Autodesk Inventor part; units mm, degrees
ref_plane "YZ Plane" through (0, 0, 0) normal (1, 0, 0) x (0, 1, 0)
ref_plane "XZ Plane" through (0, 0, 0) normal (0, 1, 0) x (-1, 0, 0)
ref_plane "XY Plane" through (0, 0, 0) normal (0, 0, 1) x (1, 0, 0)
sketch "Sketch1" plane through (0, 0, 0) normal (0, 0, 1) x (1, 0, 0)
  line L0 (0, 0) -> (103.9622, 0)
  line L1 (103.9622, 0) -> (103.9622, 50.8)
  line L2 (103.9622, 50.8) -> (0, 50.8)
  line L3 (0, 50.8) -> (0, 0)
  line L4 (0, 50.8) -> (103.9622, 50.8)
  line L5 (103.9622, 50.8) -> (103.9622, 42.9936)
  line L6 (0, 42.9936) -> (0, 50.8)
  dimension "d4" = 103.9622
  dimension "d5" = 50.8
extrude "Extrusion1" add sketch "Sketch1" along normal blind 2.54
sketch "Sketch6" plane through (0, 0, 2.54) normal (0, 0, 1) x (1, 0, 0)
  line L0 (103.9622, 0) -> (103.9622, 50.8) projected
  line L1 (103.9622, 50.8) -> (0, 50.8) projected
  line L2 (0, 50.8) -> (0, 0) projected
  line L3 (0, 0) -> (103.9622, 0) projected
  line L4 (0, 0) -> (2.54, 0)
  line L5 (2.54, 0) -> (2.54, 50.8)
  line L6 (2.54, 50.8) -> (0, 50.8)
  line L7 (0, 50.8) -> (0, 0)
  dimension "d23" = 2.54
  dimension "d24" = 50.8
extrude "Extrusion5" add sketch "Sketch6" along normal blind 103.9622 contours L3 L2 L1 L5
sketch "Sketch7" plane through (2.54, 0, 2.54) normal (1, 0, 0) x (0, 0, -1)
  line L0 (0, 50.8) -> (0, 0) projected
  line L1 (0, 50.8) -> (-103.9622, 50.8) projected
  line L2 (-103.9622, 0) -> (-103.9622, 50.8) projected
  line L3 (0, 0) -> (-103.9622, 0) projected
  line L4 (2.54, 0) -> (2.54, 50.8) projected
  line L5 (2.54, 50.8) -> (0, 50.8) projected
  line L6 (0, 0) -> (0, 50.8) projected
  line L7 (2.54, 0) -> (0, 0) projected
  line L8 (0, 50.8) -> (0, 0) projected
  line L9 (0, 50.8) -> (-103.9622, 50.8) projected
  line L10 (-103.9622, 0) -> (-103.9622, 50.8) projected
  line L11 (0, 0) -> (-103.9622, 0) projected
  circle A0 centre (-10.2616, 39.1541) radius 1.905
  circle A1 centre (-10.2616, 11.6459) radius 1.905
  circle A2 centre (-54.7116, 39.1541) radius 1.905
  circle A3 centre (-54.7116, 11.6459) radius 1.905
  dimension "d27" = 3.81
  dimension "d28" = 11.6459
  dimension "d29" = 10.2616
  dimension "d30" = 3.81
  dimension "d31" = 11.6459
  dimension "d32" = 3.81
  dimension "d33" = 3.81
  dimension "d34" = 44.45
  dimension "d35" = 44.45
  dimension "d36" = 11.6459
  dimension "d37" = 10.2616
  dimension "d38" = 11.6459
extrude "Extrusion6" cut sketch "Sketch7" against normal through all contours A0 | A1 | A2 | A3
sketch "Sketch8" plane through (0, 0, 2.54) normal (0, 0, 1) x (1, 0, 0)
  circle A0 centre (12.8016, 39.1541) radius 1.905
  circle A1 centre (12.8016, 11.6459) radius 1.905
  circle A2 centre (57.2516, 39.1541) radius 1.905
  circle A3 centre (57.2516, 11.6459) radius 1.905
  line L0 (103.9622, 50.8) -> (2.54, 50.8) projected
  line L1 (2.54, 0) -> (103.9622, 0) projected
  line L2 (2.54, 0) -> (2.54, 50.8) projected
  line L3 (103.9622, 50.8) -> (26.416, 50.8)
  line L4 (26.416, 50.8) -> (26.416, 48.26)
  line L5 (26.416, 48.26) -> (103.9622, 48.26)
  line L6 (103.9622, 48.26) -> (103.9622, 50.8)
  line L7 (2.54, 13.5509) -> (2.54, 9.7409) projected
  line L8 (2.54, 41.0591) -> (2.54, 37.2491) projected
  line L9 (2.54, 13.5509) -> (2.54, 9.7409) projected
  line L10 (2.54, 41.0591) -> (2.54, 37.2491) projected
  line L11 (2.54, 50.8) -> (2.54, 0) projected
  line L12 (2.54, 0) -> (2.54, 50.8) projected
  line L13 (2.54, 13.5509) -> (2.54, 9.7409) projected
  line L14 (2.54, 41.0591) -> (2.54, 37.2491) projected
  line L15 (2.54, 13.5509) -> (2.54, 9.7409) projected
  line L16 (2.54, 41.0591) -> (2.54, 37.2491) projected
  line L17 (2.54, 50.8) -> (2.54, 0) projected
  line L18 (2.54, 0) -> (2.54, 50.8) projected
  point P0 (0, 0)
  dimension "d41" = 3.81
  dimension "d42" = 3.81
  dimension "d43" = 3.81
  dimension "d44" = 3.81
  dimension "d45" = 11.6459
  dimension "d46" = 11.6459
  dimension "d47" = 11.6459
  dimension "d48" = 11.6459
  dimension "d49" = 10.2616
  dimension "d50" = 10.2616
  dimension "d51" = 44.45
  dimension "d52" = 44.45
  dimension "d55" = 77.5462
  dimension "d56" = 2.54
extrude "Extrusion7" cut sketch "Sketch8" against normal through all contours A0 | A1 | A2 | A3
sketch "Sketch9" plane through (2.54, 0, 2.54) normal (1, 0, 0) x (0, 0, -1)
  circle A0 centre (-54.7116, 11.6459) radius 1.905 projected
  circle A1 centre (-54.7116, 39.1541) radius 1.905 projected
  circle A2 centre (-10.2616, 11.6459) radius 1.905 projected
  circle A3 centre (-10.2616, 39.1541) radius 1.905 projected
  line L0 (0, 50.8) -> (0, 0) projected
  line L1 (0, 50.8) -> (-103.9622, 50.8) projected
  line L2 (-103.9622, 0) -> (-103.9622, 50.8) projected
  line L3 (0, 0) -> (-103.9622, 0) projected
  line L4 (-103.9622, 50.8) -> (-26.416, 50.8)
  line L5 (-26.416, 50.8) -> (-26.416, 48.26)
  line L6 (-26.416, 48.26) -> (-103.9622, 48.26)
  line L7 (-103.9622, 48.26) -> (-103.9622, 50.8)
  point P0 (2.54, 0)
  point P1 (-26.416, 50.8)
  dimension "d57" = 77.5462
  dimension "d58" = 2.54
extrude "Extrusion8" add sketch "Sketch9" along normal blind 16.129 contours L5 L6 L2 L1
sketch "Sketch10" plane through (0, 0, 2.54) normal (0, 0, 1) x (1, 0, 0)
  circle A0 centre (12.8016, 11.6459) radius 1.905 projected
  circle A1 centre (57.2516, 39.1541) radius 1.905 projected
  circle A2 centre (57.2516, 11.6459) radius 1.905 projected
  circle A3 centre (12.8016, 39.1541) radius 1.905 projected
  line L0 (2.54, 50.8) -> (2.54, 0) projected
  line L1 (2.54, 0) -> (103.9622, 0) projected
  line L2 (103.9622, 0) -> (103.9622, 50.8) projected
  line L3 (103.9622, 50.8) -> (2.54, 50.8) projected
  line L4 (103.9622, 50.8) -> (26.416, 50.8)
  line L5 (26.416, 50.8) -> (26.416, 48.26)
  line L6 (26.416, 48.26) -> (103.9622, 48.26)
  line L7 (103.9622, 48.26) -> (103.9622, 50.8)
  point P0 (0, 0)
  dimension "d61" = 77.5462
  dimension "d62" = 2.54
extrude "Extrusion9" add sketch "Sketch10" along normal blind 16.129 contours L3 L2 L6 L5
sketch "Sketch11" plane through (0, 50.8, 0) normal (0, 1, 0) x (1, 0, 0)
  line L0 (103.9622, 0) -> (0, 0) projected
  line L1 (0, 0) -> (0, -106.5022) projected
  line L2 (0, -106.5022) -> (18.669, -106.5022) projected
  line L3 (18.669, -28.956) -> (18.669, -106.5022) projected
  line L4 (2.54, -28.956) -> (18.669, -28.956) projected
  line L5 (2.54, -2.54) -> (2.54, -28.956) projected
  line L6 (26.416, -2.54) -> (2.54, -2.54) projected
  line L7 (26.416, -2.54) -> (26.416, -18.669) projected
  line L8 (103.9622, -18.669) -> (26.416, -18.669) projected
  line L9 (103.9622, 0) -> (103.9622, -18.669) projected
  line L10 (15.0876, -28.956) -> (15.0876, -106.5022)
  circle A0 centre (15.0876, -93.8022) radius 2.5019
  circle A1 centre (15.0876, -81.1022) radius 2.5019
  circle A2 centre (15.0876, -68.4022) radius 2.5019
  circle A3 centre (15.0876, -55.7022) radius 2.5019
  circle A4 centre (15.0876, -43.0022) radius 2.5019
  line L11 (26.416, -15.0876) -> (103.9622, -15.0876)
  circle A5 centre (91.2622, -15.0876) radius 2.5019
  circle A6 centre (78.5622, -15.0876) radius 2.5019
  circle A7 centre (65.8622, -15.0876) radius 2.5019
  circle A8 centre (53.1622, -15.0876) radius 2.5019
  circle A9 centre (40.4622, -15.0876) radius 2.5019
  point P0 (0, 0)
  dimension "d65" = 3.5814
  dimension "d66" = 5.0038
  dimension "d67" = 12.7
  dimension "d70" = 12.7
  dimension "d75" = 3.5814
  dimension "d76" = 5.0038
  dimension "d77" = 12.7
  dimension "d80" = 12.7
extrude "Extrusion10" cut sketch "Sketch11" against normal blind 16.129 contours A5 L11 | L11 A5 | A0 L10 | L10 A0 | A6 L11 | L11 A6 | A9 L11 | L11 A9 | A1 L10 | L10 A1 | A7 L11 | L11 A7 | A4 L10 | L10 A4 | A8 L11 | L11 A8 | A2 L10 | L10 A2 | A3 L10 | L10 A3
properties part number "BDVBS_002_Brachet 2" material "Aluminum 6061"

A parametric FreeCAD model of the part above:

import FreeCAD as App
import Part
import Sketcher

V = App.Vector
Q = App.Units.Quantity

doc = App.newDocument("Part")
body = doc.addObject("PartDesign::Body", "Body")

sketch1 = body.newObject("Sketcher::SketchObject", "Sketch")
sketch1.AttachmentSupport = (doc.getObject("XY_Plane"), [""])
sketch1.MapMode = "FlatFace"
sketch1.addGeometry(Part.LineSegment(V(0, 51, 0), V(0, 0, 0)), False)
sketch1.addGeometry(Part.LineSegment(V(0, 0, 0), V(104, 0, 0)), False)
sketch1.addGeometry(Part.LineSegment(V(104, 0, 0), V(104, 51, 0)), False)
sketch1.addGeometry(Part.LineSegment(V(104, 51, 0), V(0, 51, 0)), False)
sketch1.addConstraint(Sketcher.Constraint("Coincident", 0, 2, 1, 1))
sketch1.addConstraint(Sketcher.Constraint("Coincident", 1, 2, 2, 1))
sketch1.addConstraint(Sketcher.Constraint("Coincident", 2, 2, 3, 1))
sketch1.addConstraint(Sketcher.Constraint("Coincident", 3, 2, 0, 1))
sketch1.addConstraint(Sketcher.Constraint("Vertical", 0))
sketch1.addConstraint(Sketcher.Constraint("Horizontal", 1))
sketch1.addConstraint(Sketcher.Constraint("Vertical", 2))
sketch1.addConstraint(Sketcher.Constraint("Horizontal", 3))
sketch1.addConstraint(Sketcher.Constraint("Coincident", 0, 2, -1, 1))
sketch1.addConstraint(Sketcher.Constraint("DistanceY", 0, 2, 0, 1, Q("2 in")))
sketch1.addConstraint(Sketcher.Constraint("DistanceX", 1, 1, 1, 2, Q("4.093 in")))
pad1 = body.newObject("PartDesign::Pad", "Pad")
pad1.Profile = sketch1
pad1.Length = Q("0.1 in")

sketch2 = body.newObject("Sketcher::SketchObject", "Sketch001")
sketch2.AttachmentSupport = (doc.getObject("XY_Plane"), [""])
sketch2.MapMode = "FlatFace"
sketch2.AttachmentOffset = App.Placement(V(0, 0, 0.1 * 25.4), App.Rotation())
sketch2.addGeometry(Part.LineSegment(V(0, 0, 0), V(2.5, 0, 0)), False)
sketch2.addGeometry(Part.LineSegment(V(2.5, 0, 0), V(2.5, 50.8, 0)), False)
sketch2.addGeometry(Part.LineSegment(V(2.5, 50.8, 0), V(0, 50.8, 0)), False)
sketch2.addGeometry(Part.LineSegment(V(0, 50.8, 0), V(0, 0, 0)), False)
sketch2.addConstraint(Sketcher.Constraint("Coincident", 0, 2, 1, 1))
sketch2.addConstraint(Sketcher.Constraint("Coincident", 1, 2, 2, 1))
sketch2.addConstraint(Sketcher.Constraint("Coincident", 2, 2, 3, 1))
sketch2.addConstraint(Sketcher.Constraint("Coincident", 3, 2, 0, 1))
sketch2.addConstraint(Sketcher.Constraint("Horizontal", 0))
sketch2.addConstraint(Sketcher.Constraint("Vertical", 1))
sketch2.addConstraint(Sketcher.Constraint("Horizontal", 2))
sketch2.addConstraint(Sketcher.Constraint("Vertical", 3))
sketch2.addConstraint(Sketcher.Constraint("Coincident", 3, 2, -1, 1))
sketch2.addConstraint(Sketcher.Constraint("DistanceY", 1, 1, 1, 2, Q("2 in")))
sketch2.addConstraint(Sketcher.Constraint("DistanceX", 0, 1, 0, 2, Q("0.1 in")))
pad2 = body.newObject("PartDesign::Pad", "Pad001")
pad2.Profile = sketch2
pad2.Length = Q("4.093 in")

sketch3 = body.newObject("Sketcher::SketchObject", "Sketch002")
sketch3.AttachmentSupport = (doc.getObject("YZ_Plane"), [""])
sketch3.MapMode = "FlatFace"
sketch3.AttachmentOffset = App.Placement(V(0, 0, 0.1 * 25.4), App.Rotation())
sketch3.addGeometry(Part.Circle(V(39.2, 12.8, 0), V(0, 0, 1), 1.9), False)
sketch3.addGeometry(Part.Circle(V(11.6, 12.8, 0), V(0, 0, 1), 1.9), False)
sketch3.addGeometry(Part.Circle(V(39.2, 57.3, 0), V(0, 0, 1), 1.9), False)
sketch3.addGeometry(Part.Circle(V(11.6, 57.3, 0), V(0, 0, 1), 1.9), False)
sketch3.addConstraint(Sketcher.Constraint("Equal", 0, 1))
sketch3.addConstraint(Sketcher.Constraint("Equal", 1, 2))
sketch3.addConstraint(Sketcher.Constraint("Equal", 2, 3))
sketch3.addConstraint(Sketcher.Constraint("Horizontal", 0, 3, 1, 3))
sketch3.addConstraint(Sketcher.Constraint("Horizontal", 2, 3, 3, 3))
sketch3.addConstraint(Sketcher.Constraint("Vertical", 0, 3, 2, 3))
sketch3.addConstraint(Sketcher.Constraint("Vertical", 1, 3, 3, 3))
sketch3.addConstraint(Sketcher.Constraint("Diameter", 0, Q("0.15 in")))
sketch3.addConstraint(Sketcher.Constraint("DistanceY", 0, 3, 2, 3, Q("1.75 in")))
sketch3.addConstraint(Sketcher.Constraint("DistanceX", -1, 1, 1, 3, Q("0.4585 in")))
sketch3.addConstraint(Sketcher.Constraint("DistanceY", -1, 1, 0, 3, Q("0.504 in")))
sketch3.addConstraint(Sketcher.Constraint("DistanceX", 1, 3, 0, 3, Q("1.083 in")))
pocket1 = body.newObject("PartDesign::Pocket", "Pocket")
pocket1.Profile = sketch3
pocket1.Type = "ThroughAll"

sketch4 = body.newObject("Sketcher::SketchObject", "Sketch003")
sketch4.AttachmentSupport = (doc.getObject("XY_Plane"), [""])
sketch4.MapMode = "FlatFace"
sketch4.AttachmentOffset = App.Placement(V(0, 0, 0.1 * 25.4), App.Rotation())
sketch4.addGeometry(Part.Circle(V(12.8, 39.2, 0), V(0, 0, 1), 1.9), False)
sketch4.addGeometry(Part.Circle(V(12.8, 11.6, 0), V(0, 0, 1), 1.9), False)
sketch4.addGeometry(Part.Circle(V(57.3, 39.2, 0), V(0, 0, 1), 1.9), False)
sketch4.addGeometry(Part.Circle(V(57.3, 11.6, 0), V(0, 0, 1), 1.9), False)
sketch4.addConstraint(Sketcher.Constraint("Equal", 0, 1))
sketch4.addConstraint(Sketcher.Constraint("Equal", 1, 2))
sketch4.addConstraint(Sketcher.Constraint("Equal", 2, 3))
sketch4.addConstraint(Sketcher.Constraint("Horizontal", 0, 3, 2, 3))
sketch4.addConstraint(Sketcher.Constraint("Horizontal", 1, 3, 3, 3))
sketch4.addConstraint(Sketcher.Constraint("Vertical", 0, 3, 1, 3))
sketch4.addConstraint(Sketcher.Constraint("Vertical", 2, 3, 3, 3))
sketch4.addConstraint(Sketcher.Constraint("Diameter", 0, Q("0.15 in")))
sketch4.addConstraint(Sketcher.Constraint("DistanceX", 0, 3, 2, 3, Q("1.75 in")))
sketch4.addConstraint(Sketcher.Constraint("DistanceY", -1, 1, 1, 3, Q("0.4585 in")))
sketch4.addConstraint(Sketcher.Constraint("DistanceX", -1, 1, 0, 3, Q("0.504 in")))
sketch4.addConstraint(Sketcher.Constraint("DistanceY", 1, 3, 0, 3, Q("1.083 in")))
pocket2 = body.newObject("PartDesign::Pocket", "Pocket001")
pocket2.Profile = sketch4
pocket2.Type = "ThroughAll"

sketch5 = body.newObject("Sketcher::SketchObject", "Sketch004")
sketch5.AttachmentSupport = (doc.getObject("YZ_Plane"), [""])
sketch5.MapMode = "FlatFace"
sketch5.AttachmentOffset = App.Placement(V(0, 0, 0.1 * 25.4), App.Rotation())
sketch5.addGeometry(Part.LineSegment(V(48.3, 29, 0), V(50.8, 29, 0)), False)
sketch5.addGeometry(Part.LineSegment(V(50.8, 29, 0), V(50.8, 106.5, 0)), False)
sketch5.addGeometry(Part.LineSegment(V(50.8, 106.5, 0), V(48.3, 106.5, 0)), False)
sketch5.addGeometry(Part.LineSegment(V(48.3, 106.5, 0), V(48.3, 29, 0)), False)
sketch5.addConstraint(Sketcher.Constraint("Coincident", 0, 2, 1, 1))
sketch5.addConstraint(Sketcher.Constraint("Coincident", 1, 2, 2, 1))
sketch5.addConstraint(Sketcher.Constraint("Coincident", 2, 2, 3, 1))
sketch5.addConstraint(Sketcher.Constraint("Coincident", 3, 2, 0, 1))
sketch5.addConstraint(Sketcher.Constraint("Horizontal", 0))
sketch5.addConstraint(Sketcher.Constraint("Vertical", 1))
sketch5.addConstraint(Sketcher.Constraint("Horizontal", 2))
sketch5.addConstraint(Sketcher.Constraint("Vertical", 3))
sketch5.addConstraint(Sketcher.Constraint("DistanceX", 0, 1, 0, 2, Q("0.1 in")))
sketch5.addConstraint(Sketcher.Constraint("DistanceY", 1, 1, 1, 2, Q("3.053 in")))
sketch5.addConstraint(Sketcher.Constraint("DistanceX", -1, 1, 0, 2, Q("2 in")))
sketch5.addConstraint(Sketcher.Constraint("DistanceY", -1, 1, 0, 2, Q("1.14 in")))
pad3 = body.newObject("PartDesign::Pad", "Pad002")
pad3.Profile = sketch5
pad3.Length = Q("0.635 in")

sketch6 = body.newObject("Sketcher::SketchObject", "Sketch005")
sketch6.AttachmentSupport = (doc.getObject("XY_Plane"), [""])
sketch6.MapMode = "FlatFace"
sketch6.AttachmentOffset = App.Placement(V(0, 0, 0.1 * 25.4), App.Rotation())
sketch6.addGeometry(Part.LineSegment(V(104, 50.8, 0), V(26.4, 50.8, 0)), False)
sketch6.addGeometry(Part.LineSegment(V(26.4, 50.8, 0), V(26.4, 48.3, 0)), False)
sketch6.addGeometry(Part.LineSegment(V(26.4, 48.3, 0), V(104, 48.3, 0)), False)
sketch6.addGeometry(Part.LineSegment(V(104, 48.3, 0), V(104, 50.8, 0)), False)
sketch6.addConstraint(Sketcher.Constraint("Coincident", 0, 2, 1, 1))
sketch6.addConstraint(Sketcher.Constraint("Coincident", 1, 2, 2, 1))
sketch6.addConstraint(Sketcher.Constraint("Coincident", 2, 2, 3, 1))
sketch6.addConstraint(Sketcher.Constraint("Coincident", 3, 2, 0, 1))
sketch6.addConstraint(Sketcher.Constraint("Horizontal", 0))
sketch6.addConstraint(Sketcher.Constraint("Vertical", 1))
sketch6.addConstraint(Sketcher.Constraint("Horizontal", 2))
sketch6.addConstraint(Sketcher.Constraint("Vertical", 3))
sketch6.addConstraint(Sketcher.Constraint("DistanceY", 1, 2, 1, 1, Q("0.1 in")))
sketch6.addConstraint(Sketcher.Constraint("DistanceX", 0, 2, 0, 1, Q("3.053 in")))
sketch6.addConstraint(Sketcher.Constraint("DistanceY", -1, 1, 0, 2, Q("2 in")))
sketch6.addConstraint(Sketcher.Constraint("DistanceX", -1, 1, 0, 2, Q("1.04 in")))
pad4 = body.newObject("PartDesign::Pad", "Pad003")
pad4.Profile = sketch6
pad4.Length = Q("0.635 in")

sketch7 = body.newObject("Sketcher::SketchObject", "Sketch006")
sketch7.AttachmentSupport = (doc.getObject("XZ_Plane"), [""])
sketch7.MapMode = "FlatFace"
sketch7.AttachmentOffset = App.Placement(V(0, 0, -2 * 25.4), App.Rotation())
sketch7.addGeometry(Part.Circle(V(91.3, 15.1, 0), V(0, 0, 1), 2.5), False)
sketch7.addGeometry(Part.Circle(V(15.1, 93.8, 0), V(0, 0, 1), 2.5), False)
sketch7.addGeometry(Part.Circle(V(78.6, 15.1, 0), V(0, 0, 1), 2.5), False)
sketch7.addGeometry(Part.Circle(V(40.5, 15.1, 0), V(0, 0, 1), 2.5), False)
sketch7.addGeometry(Part.Circle(V(15.1, 81.1, 0), V(0, 0, 1), 2.5), False)
sketch7.addGeometry(Part.Circle(V(65.9, 15.1, 0), V(0, 0, 1), 2.5), False)
sketch7.addGeometry(Part.Circle(V(15.1, 43, 0), V(0, 0, 1), 2.5), False)
sketch7.addGeometry(Part.Circle(V(53.2, 15.1, 0), V(0, 0, 1), 2.5), False)
sketch7.addGeometry(Part.Circle(V(15.1, 68.4, 0), V(0, 0, 1), 2.5), False)
sketch7.addGeometry(Part.Circle(V(15.1, 55.7, 0), V(0, 0, 1), 2.5), False)
sketch7.addConstraint(Sketcher.Constraint("Equal", 0, 1))
sketch7.addConstraint(Sketcher.Constraint("Equal", 1, 2))
sketch7.addConstraint(Sketcher.Constraint("Equal", 2, 3))
sketch7.addConstraint(Sketcher.Constraint("Equal", 3, 4))
sketch7.addConstraint(Sketcher.Constraint("Equal", 4, 5))
sketch7.addConstraint(Sketcher.Constraint("Equal", 5, 6))
sketch7.addConstraint(Sketcher.Constraint("Equal", 6, 7))
sketch7.addConstraint(Sketcher.Constraint("Equal", 7, 8))
sketch7.addConstraint(Sketcher.Constraint("Equal", 8, 9))
sketch7.addConstraint(Sketcher.Constraint("Horizontal", 0, 3, 2, 3))
sketch7.addConstraint(Sketcher.Constraint("Horizontal", 2, 3, 3, 3))
sketch7.addConstraint(Sketcher.Constraint("Horizontal", 3, 3, 5, 3))
sketch7.addConstraint(Sketcher.Constraint("Horizontal", 5, 3, 7, 3))
sketch7.addConstraint(Sketcher.Constraint("Vertical", 1, 3, 4, 3))
sketch7.addConstraint(Sketcher.Constraint("Vertical", 4, 3, 6, 3))
sketch7.addConstraint(Sketcher.Constraint("Vertical", 6, 3, 8, 3))
sketch7.addConstraint(Sketcher.Constraint("Vertical", 8, 3, 9, 3))
sketch7.addConstraint(Sketcher.Constraint("Diameter", 0, Q("0.197 in")))
sketch7.addConstraint(Sketcher.Constraint("DistanceX", 3, 3, 5, 3, Q("1 in")))
sketch7.addConstraint(Sketcher.Constraint("DistanceX", 5, 3, 0, 3, Q("1 in")))
sketch7.addConstraint(Sketcher.Constraint("DistanceX", 7, 3, 2, 3, Q("1 in")))
sketch7.addConstraint(Sketcher.Constraint("DistanceY", 6, 3, 8, 3, Q("1 in")))
sketch7.addConstraint(Sketcher.Constraint("DistanceY", 8, 3, 1, 3, Q("1 in")))
sketch7.addConstraint(Sketcher.Constraint("DistanceY", 9, 3, 4, 3, Q("1 in")))
sketch7.addConstraint(Sketcher.Constraint("DistanceX", 2, 3, 0, 3, Q("0.5 in")))
sketch7.addConstraint(Sketcher.Constraint("DistanceY", 4, 3, 1, 3, Q("0.5 in")))
sketch7.addConstraint(Sketcher.Constraint("DistanceX", -1, 1, 0, 3, Q("3.593 in")))
sketch7.addConstraint(Sketcher.Constraint("DistanceY", -1, 1, 0, 3, Q("0.594 in")))
sketch7.addConstraint(Sketcher.Constraint("DistanceX", -1, 1, 1, 3, Q("0.594 in")))
sketch7.addConstraint(Sketcher.Constraint("DistanceY", -1, 1, 1, 3, Q("3.693 in")))
pocket3 = body.newObject("PartDesign::Pocket", "Pocket002")
pocket3.Profile = sketch7
pocket3.Length = Q("0.635 in")
pocket3.Reversed = True

doc.recompute()
